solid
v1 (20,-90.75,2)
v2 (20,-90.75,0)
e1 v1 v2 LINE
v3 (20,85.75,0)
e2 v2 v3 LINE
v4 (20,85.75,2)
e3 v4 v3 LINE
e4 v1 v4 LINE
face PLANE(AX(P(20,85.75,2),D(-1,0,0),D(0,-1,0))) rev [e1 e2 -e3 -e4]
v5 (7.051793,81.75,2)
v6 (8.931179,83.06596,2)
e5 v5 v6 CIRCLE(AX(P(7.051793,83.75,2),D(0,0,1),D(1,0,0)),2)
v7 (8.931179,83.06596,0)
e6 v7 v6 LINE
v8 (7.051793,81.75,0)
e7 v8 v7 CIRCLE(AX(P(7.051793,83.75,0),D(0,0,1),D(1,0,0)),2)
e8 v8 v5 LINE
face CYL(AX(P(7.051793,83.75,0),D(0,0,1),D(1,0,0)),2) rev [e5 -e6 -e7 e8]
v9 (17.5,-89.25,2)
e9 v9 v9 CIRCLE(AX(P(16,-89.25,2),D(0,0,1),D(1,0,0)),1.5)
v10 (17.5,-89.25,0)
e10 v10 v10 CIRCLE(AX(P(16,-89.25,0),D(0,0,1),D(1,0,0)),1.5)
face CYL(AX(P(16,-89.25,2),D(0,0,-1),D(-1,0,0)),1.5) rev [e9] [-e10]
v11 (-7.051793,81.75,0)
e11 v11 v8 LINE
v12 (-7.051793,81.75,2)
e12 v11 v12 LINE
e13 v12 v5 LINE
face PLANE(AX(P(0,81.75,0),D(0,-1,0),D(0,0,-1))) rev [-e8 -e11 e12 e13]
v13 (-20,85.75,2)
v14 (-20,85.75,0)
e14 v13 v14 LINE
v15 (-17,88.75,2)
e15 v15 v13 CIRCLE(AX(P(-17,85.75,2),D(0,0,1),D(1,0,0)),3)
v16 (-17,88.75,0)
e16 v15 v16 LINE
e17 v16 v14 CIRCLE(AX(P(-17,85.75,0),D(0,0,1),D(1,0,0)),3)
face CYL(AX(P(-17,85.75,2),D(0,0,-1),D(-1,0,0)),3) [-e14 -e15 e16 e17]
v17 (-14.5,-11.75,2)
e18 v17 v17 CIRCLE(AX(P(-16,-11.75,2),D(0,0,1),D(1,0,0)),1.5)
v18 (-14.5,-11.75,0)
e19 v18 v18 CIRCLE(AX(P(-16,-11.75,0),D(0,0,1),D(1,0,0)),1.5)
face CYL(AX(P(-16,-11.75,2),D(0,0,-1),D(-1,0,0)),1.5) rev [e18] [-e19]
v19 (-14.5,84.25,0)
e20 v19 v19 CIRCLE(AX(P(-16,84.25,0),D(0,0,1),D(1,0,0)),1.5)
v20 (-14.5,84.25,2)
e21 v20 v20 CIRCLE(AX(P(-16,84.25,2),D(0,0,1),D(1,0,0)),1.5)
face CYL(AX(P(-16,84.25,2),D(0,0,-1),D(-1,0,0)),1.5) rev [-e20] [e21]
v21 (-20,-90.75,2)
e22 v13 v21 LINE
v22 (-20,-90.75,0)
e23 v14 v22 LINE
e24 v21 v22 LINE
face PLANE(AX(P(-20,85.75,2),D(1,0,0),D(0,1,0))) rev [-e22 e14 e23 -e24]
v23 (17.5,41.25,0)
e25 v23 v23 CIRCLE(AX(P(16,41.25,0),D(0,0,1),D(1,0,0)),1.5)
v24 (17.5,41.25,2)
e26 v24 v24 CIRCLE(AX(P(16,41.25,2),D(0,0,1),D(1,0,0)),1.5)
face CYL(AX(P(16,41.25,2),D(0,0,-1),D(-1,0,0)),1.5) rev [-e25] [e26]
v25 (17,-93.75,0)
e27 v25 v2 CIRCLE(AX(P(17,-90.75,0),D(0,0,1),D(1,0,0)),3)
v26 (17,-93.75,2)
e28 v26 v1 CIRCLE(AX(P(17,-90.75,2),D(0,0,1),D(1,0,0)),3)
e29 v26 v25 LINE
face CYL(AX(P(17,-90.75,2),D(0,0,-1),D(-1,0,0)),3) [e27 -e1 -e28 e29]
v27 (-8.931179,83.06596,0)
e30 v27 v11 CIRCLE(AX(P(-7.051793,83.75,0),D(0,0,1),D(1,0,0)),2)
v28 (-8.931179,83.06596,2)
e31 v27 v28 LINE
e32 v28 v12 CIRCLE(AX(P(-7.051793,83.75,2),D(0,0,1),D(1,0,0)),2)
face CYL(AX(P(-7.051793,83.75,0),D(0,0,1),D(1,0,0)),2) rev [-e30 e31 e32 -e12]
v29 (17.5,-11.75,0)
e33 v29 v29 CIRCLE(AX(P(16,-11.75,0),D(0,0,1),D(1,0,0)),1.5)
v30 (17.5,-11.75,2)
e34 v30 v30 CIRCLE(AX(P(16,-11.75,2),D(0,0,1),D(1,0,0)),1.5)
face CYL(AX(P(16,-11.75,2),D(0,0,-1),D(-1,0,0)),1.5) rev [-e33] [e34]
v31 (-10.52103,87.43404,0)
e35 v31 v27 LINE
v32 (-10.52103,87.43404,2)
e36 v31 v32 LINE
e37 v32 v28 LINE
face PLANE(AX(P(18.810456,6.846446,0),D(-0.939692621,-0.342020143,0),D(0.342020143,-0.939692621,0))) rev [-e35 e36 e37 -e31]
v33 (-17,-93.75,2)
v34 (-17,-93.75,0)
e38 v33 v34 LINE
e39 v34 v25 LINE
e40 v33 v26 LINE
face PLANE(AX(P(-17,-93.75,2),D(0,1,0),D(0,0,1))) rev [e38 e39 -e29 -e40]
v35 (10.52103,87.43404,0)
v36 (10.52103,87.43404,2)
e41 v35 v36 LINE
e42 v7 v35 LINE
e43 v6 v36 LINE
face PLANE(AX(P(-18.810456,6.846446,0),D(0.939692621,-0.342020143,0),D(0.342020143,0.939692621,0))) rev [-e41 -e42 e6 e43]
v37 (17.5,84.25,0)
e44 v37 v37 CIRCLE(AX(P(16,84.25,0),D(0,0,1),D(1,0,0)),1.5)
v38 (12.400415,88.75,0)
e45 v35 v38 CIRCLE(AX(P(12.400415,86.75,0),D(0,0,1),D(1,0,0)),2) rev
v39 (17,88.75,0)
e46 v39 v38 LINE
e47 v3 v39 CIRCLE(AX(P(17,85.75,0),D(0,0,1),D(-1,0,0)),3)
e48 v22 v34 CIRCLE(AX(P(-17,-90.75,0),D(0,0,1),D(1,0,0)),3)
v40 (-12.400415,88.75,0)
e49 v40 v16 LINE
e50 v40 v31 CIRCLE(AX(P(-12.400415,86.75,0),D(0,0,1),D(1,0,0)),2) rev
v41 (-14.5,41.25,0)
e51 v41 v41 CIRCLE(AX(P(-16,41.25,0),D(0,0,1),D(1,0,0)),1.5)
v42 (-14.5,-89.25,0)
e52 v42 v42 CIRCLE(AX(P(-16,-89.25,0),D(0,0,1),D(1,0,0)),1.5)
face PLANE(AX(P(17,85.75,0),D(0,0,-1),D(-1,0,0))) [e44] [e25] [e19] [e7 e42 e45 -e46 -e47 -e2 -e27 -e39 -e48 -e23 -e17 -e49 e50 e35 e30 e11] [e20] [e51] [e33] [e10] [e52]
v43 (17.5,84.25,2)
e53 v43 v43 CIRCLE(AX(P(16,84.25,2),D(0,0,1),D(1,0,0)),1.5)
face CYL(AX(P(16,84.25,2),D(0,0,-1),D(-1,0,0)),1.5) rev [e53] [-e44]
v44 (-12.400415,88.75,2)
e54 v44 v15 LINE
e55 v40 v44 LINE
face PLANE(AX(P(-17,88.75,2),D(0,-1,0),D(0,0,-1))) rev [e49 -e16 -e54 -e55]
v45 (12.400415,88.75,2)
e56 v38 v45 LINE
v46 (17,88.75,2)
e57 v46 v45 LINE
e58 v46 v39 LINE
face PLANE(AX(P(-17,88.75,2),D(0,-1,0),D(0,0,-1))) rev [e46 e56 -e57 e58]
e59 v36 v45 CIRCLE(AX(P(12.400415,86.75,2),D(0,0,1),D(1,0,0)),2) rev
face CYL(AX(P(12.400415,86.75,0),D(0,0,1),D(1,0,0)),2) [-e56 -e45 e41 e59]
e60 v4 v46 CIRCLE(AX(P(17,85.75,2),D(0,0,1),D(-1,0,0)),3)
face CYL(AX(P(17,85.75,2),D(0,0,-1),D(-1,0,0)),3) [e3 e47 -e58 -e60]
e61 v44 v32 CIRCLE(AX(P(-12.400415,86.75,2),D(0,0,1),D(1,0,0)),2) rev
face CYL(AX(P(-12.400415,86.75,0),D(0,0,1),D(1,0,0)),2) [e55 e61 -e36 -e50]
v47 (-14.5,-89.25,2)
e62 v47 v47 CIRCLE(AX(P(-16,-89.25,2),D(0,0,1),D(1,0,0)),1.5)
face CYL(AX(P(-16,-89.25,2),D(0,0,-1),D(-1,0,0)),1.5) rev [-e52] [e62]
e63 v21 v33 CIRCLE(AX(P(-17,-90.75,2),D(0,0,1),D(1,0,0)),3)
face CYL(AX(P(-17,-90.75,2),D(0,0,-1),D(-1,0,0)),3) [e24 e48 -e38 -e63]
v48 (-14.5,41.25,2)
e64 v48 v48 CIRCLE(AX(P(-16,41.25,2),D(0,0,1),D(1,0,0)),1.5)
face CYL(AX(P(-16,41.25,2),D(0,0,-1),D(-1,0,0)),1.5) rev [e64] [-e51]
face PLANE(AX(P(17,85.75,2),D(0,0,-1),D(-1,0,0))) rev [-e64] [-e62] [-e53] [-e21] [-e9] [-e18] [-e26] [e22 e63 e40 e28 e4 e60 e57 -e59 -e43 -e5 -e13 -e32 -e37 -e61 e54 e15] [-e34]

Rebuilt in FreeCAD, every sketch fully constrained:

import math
import FreeCAD as App
import Part
import Sketcher

V = App.Vector
Q = App.Units.Quantity

doc = App.newDocument("Part")
body = doc.addObject("PartDesign::Body", "Body")

# Sketch on XY plane
sketch1 = doc.addObject("Sketcher::SketchObject", "Sketch")
body.addObject(sketch1)
sketch1.AttachmentSupport = (doc.XY_Plane, [""])
sketch1.MapMode = "FlatFace"
sketch1.addGeometry([
    Part.LineSegment(V(17, 88.8, 0), V(-17, 88.8, 0)),  # 0
    Part.ArcOfCircle(Part.Circle(V(-17, 85.8, 0), V(0, 0, 1), 3), math.radians(90), math.radians(180)),  # 1
    Part.LineSegment(V(-20, 85.8, 0), V(-20, -90.8, 0)),  # 2
    Part.ArcOfCircle(Part.Circle(V(-17, -90.8, 0), V(0, 0, 1), 3), math.radians(180), math.radians(270)),  # 3
    Part.LineSegment(V(-17, -93.8, 0), V(17, -93.8, 0)),  # 4
    Part.ArcOfCircle(Part.Circle(V(17, -90.8, 0), V(0, 0, 1), 3), math.radians(-90), math.radians(0)),  # 5
    Part.LineSegment(V(20, -90.8, 0), V(20, 85.8, 0)),  # 6
    Part.ArcOfCircle(Part.Circle(V(17, 85.8, 0), V(0, 0, 1), 3), math.radians(0), math.radians(90)),  # 7
    Part.Circle(V(16, -89.2, 0), V(0, 0, 1), 1.5),  # 8
    Part.Circle(V(16, -11.8, 0), V(0, 0, 1), 1.5),  # 9
    Part.Circle(V(-16, -89.2, 0), V(0, 0, 1), 1.5),  # 10
    Part.Circle(V(-16, -11.8, 0), V(0, 0, 1), 1.5),  # 11
    Part.Circle(V(16, 41.2, 0), V(0, 0, 1), 1.5),  # 12
    Part.Circle(V(16, 84.2, 0), V(0, 0, 1), 1.5),  # 13
    Part.Circle(V(-16, 41.2, 0), V(0, 0, 1), 1.5),  # 14
    Part.Circle(V(-16, 84.2, 0), V(0, 0, 1), 1.5),  # 15
], False)
sketch1.addConstraint([
    Sketcher.Constraint("Tangent", 0, 2, 1, 1),
    Sketcher.Constraint("Tangent", 1, 2, 2, 1),
    Sketcher.Constraint("Tangent", 2, 2, 3, 1),
    Sketcher.Constraint("Tangent", 3, 2, 4, 1),
    Sketcher.Constraint("Tangent", 4, 2, 5, 1),
    Sketcher.Constraint("Tangent", 5, 2, 6, 1),
    Sketcher.Constraint("Tangent", 6, 2, 7, 1),
    Sketcher.Constraint("Tangent", 7, 2, 0, 1),
    Sketcher.Constraint("Horizontal", 0),
    Sketcher.Constraint("Vertical", 2),
    Sketcher.Constraint("Horizontal", 4),
    Sketcher.Constraint("Vertical", 6),
    Sketcher.Constraint("Equal", 1, 3),
    Sketcher.Constraint("Equal", 3, 5),
    Sketcher.Constraint("Equal", 5, 7),
    Sketcher.Constraint("Equal", 8, 9),
    Sketcher.Constraint("Equal", 9, 10),
    Sketcher.Constraint("Equal", 10, 11),
    Sketcher.Constraint("Equal", 11, 12),
    Sketcher.Constraint("Equal", 12, 13),
    Sketcher.Constraint("Equal", 13, 14),
    Sketcher.Constraint("Equal", 14, 15),
    Sketcher.Constraint("Symmetric", 8, 3, 10, 3, -2),
    Sketcher.Constraint("Symmetric", 9, 3, 11, 3, -2),
    Sketcher.Constraint("Symmetric", 12, 3, 14, 3, -2),
    Sketcher.Constraint("Symmetric", 13, 3, 15, 3, -2),
    Sketcher.Constraint("Vertical", 8, 3, 9, 3),
    Sketcher.Constraint("Vertical", 9, 3, 12, 3),
    Sketcher.Constraint("Vertical", 12, 3, 13, 3),
    Sketcher.Constraint("Diameter", 8, 3.0),
    Sketcher.Constraint("Radius", 1, 3.0),
    Sketcher.Constraint("DistanceX", 0, 2, 0, 1, 34.0),
    Sketcher.Constraint("DistanceY", 2, 2, 2, 1, 176.5),
    Sketcher.Constraint("DistanceX", 1, 3, -1, 1, 17.0),
    Sketcher.Constraint("DistanceX", -1, 1, 8, 3, 16.0),
    Sketcher.Constraint("DistanceY", 8, 3, 7, 3, 175.0),
    Sketcher.Constraint("DistanceY", 5, 3, 9, 3, 79.0),
    Sketcher.Constraint("DistanceY", 9, 3, 12, 3, 53.0),
    Sketcher.Constraint("DistanceY", 12, 3, 13, 3, 43.0),
    Sketcher.Constraint("DistanceY", -1, 1, 1, 3, 85.75),
])
pad1 = doc.addObject("PartDesign::Pad", "Pad")
body.addObject(pad1)
pad1.Profile = sketch1
pad1.Length = 2

# Sketch on XY plane
sketch2 = doc.addObject("Sketcher::SketchObject", "Sketch001")
body.addObject(sketch2)
sketch2.AttachmentSupport = (doc.XY_Plane, [""])
sketch2.MapMode = "FlatFace"
sketch2.AttachmentOffset = App.Placement(V(0, 0, 2), App.Rotation())
sketch2.addGeometry([
    Part.ArcOfCircle(Part.Circle(V(-12.4, 86.8, 0), V(0, 0, 1), 2), math.radians(20), math.radians(90)),  # 0
    Part.LineSegment(V(-10.5, 87.4, 0), V(-8.9, 83.1, 0)),  # 1
    Part.ArcOfCircle(Part.Circle(V(-7.1, 83.7, 0), V(0, 0, 1), 2), math.radians(-160), math.radians(-90)),  # 2
    Part.LineSegment(V(-7.1, 81.8, 0), V(7.1, 81.8, 0)),  # 3
    Part.ArcOfCircle(Part.Circle(V(7.1, 83.7, 0), V(0, 0, 1), 2), math.radians(-90), math.radians(-20)),  # 4
    Part.LineSegment(V(8.9, 83.1, 0), V(10.5, 87.4, 0)),  # 5
    Part.ArcOfCircle(Part.Circle(V(12.4, 86.8, 0), V(0, 0, 1), 2), math.radians(90), math.radians(160)),  # 6
    Part.LineSegment(V(12.4, 88.8, 0), V(-12.4, 88.8, 0)),  # 7
], False)
sketch2.addConstraint([
    Sketcher.Constraint("Tangent", 0, 1, 1, 1),
    Sketcher.Constraint("Tangent", 1, 2, 2, 1),
    Sketcher.Constraint("Tangent", 2, 2, 3, 1),
    Sketcher.Constraint("Tangent", 3, 2, 4, 1),
    Sketcher.Constraint("Tangent", 4, 2, 5, 1),
    Sketcher.Constraint("Tangent", 5, 2, 6, 2),
    Sketcher.Constraint("Tangent", 6, 1, 7, 1),
    Sketcher.Constraint("Tangent", 7, 2, 0, 2),
    Sketcher.Constraint("Horizontal", 3),
    Sketcher.Constraint("Horizontal", 7),
    Sketcher.Constraint("Equal", 0, 2),
    Sketcher.Constraint("Equal", 2, 4),
    Sketcher.Constraint("Equal", 4, 6),
    Sketcher.Constraint("Symmetric", 1, 2, 4, 2, -2),
    Sketcher.Constraint("Radius", 0, 2.0),
    Sketcher.Constraint("Angle", 1, Q("-70 deg")),
    Sketcher.Constraint("DistanceY", 2, 3, 0, 3, 3.0),
    Sketcher.Constraint("DistanceY", -1, 1, 0, 3, 86.75),
    Sketcher.Constraint("DistanceX", 7, 2, 7, 1, 24.80083),
])
pocket1 = doc.addObject("PartDesign::Pocket", "Pocket")
body.addObject(pocket1)
pocket1.Profile = sketch2
pocket1.Type = "ThroughAll"
pocket1.Midplane = True

doc.recompute()
